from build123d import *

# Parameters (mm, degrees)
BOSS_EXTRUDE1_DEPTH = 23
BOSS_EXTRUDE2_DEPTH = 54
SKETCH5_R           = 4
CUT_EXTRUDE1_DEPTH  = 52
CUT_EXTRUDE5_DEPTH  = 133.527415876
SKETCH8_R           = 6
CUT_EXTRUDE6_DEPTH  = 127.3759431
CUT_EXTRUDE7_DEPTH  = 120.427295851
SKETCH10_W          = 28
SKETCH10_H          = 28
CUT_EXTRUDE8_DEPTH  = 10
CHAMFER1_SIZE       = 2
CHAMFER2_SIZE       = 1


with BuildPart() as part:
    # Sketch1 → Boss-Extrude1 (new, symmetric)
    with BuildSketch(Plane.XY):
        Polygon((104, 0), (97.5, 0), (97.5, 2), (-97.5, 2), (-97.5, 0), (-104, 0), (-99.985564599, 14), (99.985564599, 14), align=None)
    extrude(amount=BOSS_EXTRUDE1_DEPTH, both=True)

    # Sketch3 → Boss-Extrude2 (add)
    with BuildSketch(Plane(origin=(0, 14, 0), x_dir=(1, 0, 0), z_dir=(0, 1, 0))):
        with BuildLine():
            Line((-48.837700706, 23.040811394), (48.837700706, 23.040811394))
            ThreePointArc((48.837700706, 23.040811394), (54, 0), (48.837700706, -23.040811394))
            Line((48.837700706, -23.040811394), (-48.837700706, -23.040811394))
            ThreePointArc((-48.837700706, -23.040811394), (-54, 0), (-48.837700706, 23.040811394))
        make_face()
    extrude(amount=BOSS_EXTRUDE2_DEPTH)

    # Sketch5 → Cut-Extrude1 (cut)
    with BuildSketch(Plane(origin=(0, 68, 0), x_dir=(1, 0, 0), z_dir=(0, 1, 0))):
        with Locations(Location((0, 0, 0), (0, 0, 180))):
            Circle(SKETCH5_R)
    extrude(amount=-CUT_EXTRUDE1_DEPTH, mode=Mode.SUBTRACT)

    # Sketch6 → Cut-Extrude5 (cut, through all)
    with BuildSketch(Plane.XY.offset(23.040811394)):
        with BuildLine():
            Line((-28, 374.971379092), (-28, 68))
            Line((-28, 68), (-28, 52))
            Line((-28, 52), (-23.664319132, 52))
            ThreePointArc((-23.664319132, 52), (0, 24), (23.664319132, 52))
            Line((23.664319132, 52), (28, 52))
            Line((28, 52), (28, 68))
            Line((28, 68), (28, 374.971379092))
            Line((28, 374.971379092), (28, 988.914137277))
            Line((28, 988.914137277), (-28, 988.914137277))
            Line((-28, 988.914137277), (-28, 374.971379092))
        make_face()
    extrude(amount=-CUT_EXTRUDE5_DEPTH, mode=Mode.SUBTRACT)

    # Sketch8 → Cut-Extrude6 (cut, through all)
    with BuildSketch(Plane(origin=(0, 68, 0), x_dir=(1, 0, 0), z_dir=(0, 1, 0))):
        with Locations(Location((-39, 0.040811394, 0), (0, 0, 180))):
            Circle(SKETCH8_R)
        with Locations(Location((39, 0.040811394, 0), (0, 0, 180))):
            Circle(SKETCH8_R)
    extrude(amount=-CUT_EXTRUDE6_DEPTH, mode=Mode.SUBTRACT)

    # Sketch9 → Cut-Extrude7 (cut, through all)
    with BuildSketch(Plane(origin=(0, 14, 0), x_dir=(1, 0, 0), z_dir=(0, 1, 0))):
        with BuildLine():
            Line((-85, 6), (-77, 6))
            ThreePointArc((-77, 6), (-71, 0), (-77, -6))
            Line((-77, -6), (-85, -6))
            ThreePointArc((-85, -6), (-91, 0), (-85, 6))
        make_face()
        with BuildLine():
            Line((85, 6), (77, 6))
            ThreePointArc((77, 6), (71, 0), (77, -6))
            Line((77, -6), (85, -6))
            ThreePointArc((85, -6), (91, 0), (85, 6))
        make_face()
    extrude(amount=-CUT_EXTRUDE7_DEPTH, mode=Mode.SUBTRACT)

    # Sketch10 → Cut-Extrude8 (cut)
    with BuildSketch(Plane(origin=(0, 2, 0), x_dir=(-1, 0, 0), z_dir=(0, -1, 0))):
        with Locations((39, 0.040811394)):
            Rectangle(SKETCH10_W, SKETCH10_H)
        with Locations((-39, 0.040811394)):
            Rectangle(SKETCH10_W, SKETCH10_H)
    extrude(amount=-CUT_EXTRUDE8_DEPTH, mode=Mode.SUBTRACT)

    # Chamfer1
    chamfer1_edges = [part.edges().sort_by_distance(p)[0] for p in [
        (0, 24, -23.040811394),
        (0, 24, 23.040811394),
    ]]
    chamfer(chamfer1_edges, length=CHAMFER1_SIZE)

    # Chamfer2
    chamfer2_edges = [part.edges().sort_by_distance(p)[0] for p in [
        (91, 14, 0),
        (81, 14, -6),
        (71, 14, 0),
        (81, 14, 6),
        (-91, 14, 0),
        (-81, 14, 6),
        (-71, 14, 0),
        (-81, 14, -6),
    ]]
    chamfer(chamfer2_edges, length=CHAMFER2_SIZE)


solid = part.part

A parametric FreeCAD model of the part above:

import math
import FreeCAD as App
import Part
import Sketcher
Q = App.Units.Quantity


def edges_at(feature, points):
    """Names of the edges that pass closest to the given points."""
    edges = feature.Shape.Edges
    near = lambda p: min(range(len(edges)), key=lambda i: edges[i].distToShape(Part.Vertex(*p))[0])
    return sorted({f"Edge{near(p) + 1}" for p in points})


def add_polygon(sketch, points):
    """Adds a closed chain of lines whose ends are joined by coincident constraints."""
    first, n = sketch.GeometryCount, len(points)
    for a, b in zip(points, points[1:] + points[:1]):
        sketch.addGeometry(Part.LineSegment(App.Vector(*a, 0), App.Vector(*b, 0)), False)
    for i in range(n):
        sketch.addConstraint(Sketcher.Constraint("Coincident", first + i, 2, first + (i + 1) % n, 1))

doc = App.newDocument("Part")
body = doc.addObject("PartDesign::Body", "Body")

sketch1 = body.newObject("Sketcher::SketchObject", "Sketch")
sketch1.AttachmentSupport = (doc.getObject("XY_Plane"), [""])
sketch1.MapMode = "FlatFace"
add_polygon(sketch1, [(97.5, 0), (104, 0), (100, 14), (-100, 14), (-104, 0), (-97.5, 0), (-97.5, 2), (97.5, 2)])
sketch1.addConstraint([
    Sketcher.Constraint("Horizontal", 0),
    Sketcher.Constraint("Horizontal", 2),
    Sketcher.Constraint("Horizontal", 4),
    Sketcher.Constraint("Vertical", 5),
    Sketcher.Constraint("Horizontal", 6),
    Sketcher.Constraint("Vertical", 7),
    Sketcher.Constraint("Symmetric", 0, 2, 3, 2, -1, 1),
    Sketcher.Constraint("Symmetric", 4, 2, 7, 2, -2),
    Sketcher.Constraint("Equal", 1, 3),
    Sketcher.Constraint("DistanceX", 6, 1, 6, 2, 195.0),
    Sketcher.Constraint("DistanceY", 5, 1, 5, 2, 2.0),
    Sketcher.Constraint("Angle", 1, Q("106 deg")),
    Sketcher.Constraint("DistanceX", 0, 1, 0, 2, 6.5),
    Sketcher.Constraint("DistanceY", -1, 1, 1, 2, 14.0),
])
pad1 = body.newObject("PartDesign::Pad", "Pad")
pad1.Profile = sketch1
pad1.Length = 46
pad1.Midplane = True

sketch2 = body.newObject("Sketcher::SketchObject", "Sketch001")
sketch2.AttachmentSupport = (doc.getObject("XZ_Plane"), [""])
sketch2.MapMode = "FlatFace"
sketch2.AttachmentOffset = App.Placement(App.Vector(0, 0, -14), App.Rotation())
sketch2.addGeometry([
    Part.LineSegment(App.Vector(49, -23, 0), App.Vector(-49, -23, 0)),
    Part.ArcOfCircle(Part.Circle(App.Vector(0, 0, 0), App.Vector(0, 0, 1), 54), math.radians(155), math.radians(205)),
    Part.LineSegment(App.Vector(-49, 23, 0), App.Vector(49, 23, 0)),
    Part.ArcOfCircle(Part.Circle(App.Vector(0, 0, 0), App.Vector(0, 0, 1), 54), math.radians(-25), math.radians(25)),
], False)
sketch2.addConstraint([
    Sketcher.Constraint("Coincident", 0, 2, 1, 2),
    Sketcher.Constraint("Coincident", 1, 1, 2, 1),
    Sketcher.Constraint("Coincident", 2, 2, 3, 2),
    Sketcher.Constraint("Coincident", 3, 1, 0, 1),
    Sketcher.Constraint("Horizontal", 0),
    Sketcher.Constraint("Horizontal", 2),
    Sketcher.Constraint("Coincident", 1, 3, -1, 1),
    Sketcher.Constraint("Coincident", 3, 3, -1, 1),
    Sketcher.Constraint("Equal", 1, 3),
    Sketcher.Constraint("Vertical", 0, 2, 1, 1),
    Sketcher.Constraint("Radius", 1, 54.0),
    Sketcher.Constraint("DistanceX", 0, 2, 0, 1, 97.675401),
])
pad2 = body.newObject("PartDesign::Pad", "Pad001")
pad2.Profile = sketch2
pad2.Length = 54
pad2.Reversed = True

sketch3 = body.newObject("Sketcher::SketchObject", "Sketch002")
sketch3.AttachmentSupport = (doc.getObject("XZ_Plane"), [""])
sketch3.MapMode = "FlatFace"
sketch3.AttachmentOffset = App.Placement(App.Vector(0, 0, -68), App.Rotation())
sketch3.addGeometry(Part.Circle(App.Vector(0, 0, 0), App.Vector(0, 0, 1), 4), False)
sketch3.addConstraint([
    Sketcher.Constraint("Coincident", 0, 3, -1, 1),
    Sketcher.Constraint("Diameter", 0, 8.0),
])
pocket1 = body.newObject("PartDesign::Pocket", "Pocket")
pocket1.Profile = sketch3
pocket1.Length = 52
pocket1.Reversed = True

sketch4 = body.newObject("Sketcher::SketchObject", "Sketch003")
sketch4.AttachmentSupport = (doc.getObject("XY_Plane"), [""])
sketch4.MapMode = "FlatFace"
sketch4.AttachmentOffset = App.Placement(App.Vector(0, 0, 23.040811), App.Rotation())
sketch4.addGeometry([
    Part.LineSegment(App.Vector(-28, 52, 0), App.Vector(-23.7, 52, 0)),
    Part.ArcOfCircle(Part.Circle(App.Vector(0, 48, 0), App.Vector(0, 0, 1), 24), math.radians(170), math.radians(370)),
    Part.LineSegment(App.Vector(23.7, 52, 0), App.Vector(28, 52, 0)),
    Part.LineSegment(App.Vector(28, 52, 0), App.Vector(28, 988.9, 0)),
    Part.LineSegment(App.Vector(28, 988.9, 0), App.Vector(-28, 988.9, 0)),
    Part.LineSegment(App.Vector(-28, 988.9, 0), App.Vector(-28, 52, 0)),
], False)
sketch4.addConstraint([
    Sketcher.Constraint("Coincident", 0, 2, 1, 1),
    Sketcher.Constraint("Coincident", 1, 2, 2, 1),
    Sketcher.Constraint("Coincident", 2, 2, 3, 1),
    Sketcher.Constraint("Coincident", 3, 2, 4, 1),
    Sketcher.Constraint("Coincident", 4, 2, 5, 1),
    Sketcher.Constraint("Coincident", 5, 2, 0, 1),
    Sketcher.Constraint("Horizontal", 0),
    Sketcher.Constraint("Horizontal", 2),
    Sketcher.Constraint("Vertical", 3),
    Sketcher.Constraint("Horizontal", 4),
    Sketcher.Constraint("Vertical", 5),
    Sketcher.Constraint("Symmetric", 0, 2, 1, 2, -2),
    Sketcher.Constraint("Equal", 0, 2),
    Sketcher.Constraint("Radius", 1, 24.0),
    Sketcher.Constraint("DistanceX", 4, 2, 4, 1, 56.0),
    Sketcher.Constraint("DistanceY", -1, 1, 1, 3, 48.0),
    Sketcher.Constraint("DistanceY", -1, 1, 0, 2, 52.0),
    Sketcher.Constraint("DistanceY", 3, 1, 3, 2, 936.914137),
])
pocket2 = body.newObject("PartDesign::Pocket", "Pocket001")
pocket2.Profile = sketch4
pocket2.Type = "ThroughAll"

sketch5 = body.newObject("Sketcher::SketchObject", "Sketch004")
sketch5.AttachmentSupport = (doc.getObject("XZ_Plane"), [""])
sketch5.MapMode = "FlatFace"
sketch5.AttachmentOffset = App.Placement(App.Vector(0, 0, -68), App.Rotation())
sketch5.addGeometry([
    Part.Circle(App.Vector(-39, 0, 0), App.Vector(0, 0, 1), 6),
    Part.Circle(App.Vector(39, 0, 0), App.Vector(0, 0, 1), 6),
], False)
sketch5.addConstraint([
    Sketcher.Constraint("Equal", 0, 1),
    Sketcher.Constraint("Symmetric", 0, 3, 1, 3, -2),
    Sketcher.Constraint("Diameter", 0, 12.0),
    Sketcher.Constraint("DistanceX", 0, 3, -1, 1, 39.0),
    Sketcher.Constraint("DistanceY", 0, 3, -1, 1, 0.040811),
])
pocket3 = body.newObject("PartDesign::Pocket", "Pocket002")
pocket3.Profile = sketch5
pocket3.Type = "ThroughAll"
pocket3.Reversed = True

sketch6 = body.newObject("Sketcher::SketchObject", "Sketch005")
sketch6.AttachmentSupport = (doc.getObject("XZ_Plane"), [""])
sketch6.MapMode = "FlatFace"
sketch6.AttachmentOffset = App.Placement(App.Vector(0, 0, -14), App.Rotation())
sketch6.addGeometry([
    Part.LineSegment(App.Vector(-77, -6, 0), App.Vector(-85, -6, 0)),
    Part.ArcOfCircle(Part.Circle(App.Vector(-85, 0, 0), App.Vector(0, 0, 1), 6), math.radians(90), math.radians(270)),
    Part.LineSegment(App.Vector(-85, 6, 0), App.Vector(-77, 6, 0)),
    Part.ArcOfCircle(Part.Circle(App.Vector(-77, 0, 0), App.Vector(0, 0, 1), 6), math.radians(-90), math.radians(90)),
    Part.LineSegment(App.Vector(85, -6, 0), App.Vector(77, -6, 0)),
    Part.ArcOfCircle(Part.Circle(App.Vector(77, 0, 0), App.Vector(0, 0, 1), 6), math.radians(90), math.radians(270)),
    Part.LineSegment(App.Vector(77, 6, 0), App.Vector(85, 6, 0)),
    Part.ArcOfCircle(Part.Circle(App.Vector(85, 0, 0), App.Vector(0, 0, 1), 6), math.radians(-90), math.radians(90)),
], False)
sketch6.addConstraint([
    Sketcher.Constraint("Tangent", 0, 2, 1, 2),
    Sketcher.Constraint("Tangent", 1, 1, 2, 1),
    Sketcher.Constraint("Tangent", 2, 2, 3, 2),
    Sketcher.Constraint("Tangent", 3, 1, 0, 1),
    Sketcher.Constraint("Tangent", 4, 2, 5, 2),
    Sketcher.Constraint("Tangent", 5, 1, 6, 1),
    Sketcher.Constraint("Tangent", 6, 2, 7, 2),
    Sketcher.Constraint("Tangent", 7, 1, 4, 1),
    Sketcher.Constraint("Horizontal", 0),
    Sketcher.Constraint("Horizontal", 2),
    Sketcher.Constraint("Horizontal", 4),
    Sketcher.Constraint("Horizontal", 6),
    Sketcher.Constraint("Equal", 3, 5),
    Sketcher.Constraint("Symmetric", 3, 3, 5, 3, -1, 1),
    Sketcher.Constraint("Symmetric", 1, 3, 7, 3, -2),
    Sketcher.Constraint("Radius", 1, 6.0),
    Sketcher.Constraint("DistanceX", 0, 2, 0, 1, 8.0),
    Sketcher.Constraint("DistanceX", 1, 3, -1, 1, 85.0),
])
pocket4 = body.newObject("PartDesign::Pocket", "Pocket003")
pocket4.Profile = sketch6
pocket4.Type = "ThroughAll"
pocket4.Reversed = True

sketch7 = body.newObject("Sketcher::SketchObject", "Sketch006")
sketch7.AttachmentSupport = (doc.getObject("XZ_Plane"), [""])
sketch7.MapMode = "FlatFace"
sketch7.AttachmentOffset = App.Placement(App.Vector(0, 0, -2), App.Rotation())
add_polygon(sketch7, [(-25, -14), (-25, 14), (-53, 14), (-53, -14)])
add_polygon(sketch7, [(53, -14), (53, 14), (25, 14), (25, -14)])
sketch7.addConstraint([
    Sketcher.Constraint("Vertical", 0),
    Sketcher.Constraint("Horizontal", 1),
    Sketcher.Constraint("Vertical", 2),
    Sketcher.Constraint("Horizontal", 3),
    Sketcher.Constraint("Vertical", 4),
    Sketcher.Constraint("Horizontal", 5),
    Sketcher.Constraint("Vertical", 6),
    Sketcher.Constraint("Horizontal", 7),
    Sketcher.Constraint("Symmetric", 1, 2, 4, 2, -2),
    Sketcher.Constraint("Symmetric", 3, 2, 6, 2, -2),
    Sketcher.Constraint("Equal", 7, 0),
    Sketcher.Constraint("DistanceX", 1, 2, 1, 1, 28.0),
    Sketcher.Constraint("DistanceX", 0, 2, -1, 1, 25.0),
    Sketcher.Constraint("DistanceY", -1, 1, 0, 2, 13.959189),
])
pocket5 = body.newObject("PartDesign::Pocket", "Pocket004")
pocket5.Profile = sketch7
pocket5.Length = 10
doc.recompute()

chamfer = body.newObject("PartDesign::Chamfer", "Chamfer")
chamfer.Base = (pocket5, edges_at(pocket5, [(0, 24, -23.041), (0, 24, 23.041)]))
chamfer.Size = 2
doc.recompute()

chamfer2 = body.newObject("PartDesign::Chamfer", "Chamfer001")
chamfer2.Base = (chamfer, edges_at(chamfer, [
    (91, 14, 0),
    (81, 14, -6),
    (71, 14, 0),
    (81, 14, 6),
    (-91, 14, 0),
    (-81, 14, 6),
    (-71, 14, 0),
    (-81, 14, -6),
]))
chamfer2.Size = 1

doc.recompute()
